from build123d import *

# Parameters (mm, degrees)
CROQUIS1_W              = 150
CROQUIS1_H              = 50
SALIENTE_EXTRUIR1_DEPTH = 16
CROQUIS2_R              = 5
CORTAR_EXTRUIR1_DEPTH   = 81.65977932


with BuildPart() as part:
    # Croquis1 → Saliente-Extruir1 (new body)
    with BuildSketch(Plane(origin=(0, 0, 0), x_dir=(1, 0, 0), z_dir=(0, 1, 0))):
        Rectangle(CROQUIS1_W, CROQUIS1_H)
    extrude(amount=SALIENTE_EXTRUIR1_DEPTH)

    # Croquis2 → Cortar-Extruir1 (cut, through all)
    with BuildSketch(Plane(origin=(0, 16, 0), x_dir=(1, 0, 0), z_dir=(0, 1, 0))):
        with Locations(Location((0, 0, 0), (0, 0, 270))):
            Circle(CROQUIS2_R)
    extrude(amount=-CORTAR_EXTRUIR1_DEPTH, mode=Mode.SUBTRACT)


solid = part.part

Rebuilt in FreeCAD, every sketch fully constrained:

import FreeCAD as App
import Part
import Sketcher
from FreeCAD import Vector
Q = App.Units.Quantity

doc = App.newDocument("Part")
body = doc.addObject("PartDesign::Body", "Body")

sketch1 = body.newObject("Sketcher::SketchObject", "Sketch")
sketch1.AttachmentSupport = (doc.getObject("XZ_Plane"), [""])
sketch1.MapMode = "FlatFace"
sketch1.addGeometry([
    Part.LineSegment(Vector(-75, -25, 0), Vector(-75, 25, 0)),
    Part.LineSegment(Vector(-75, 25, 0), Vector(75, 25, 0)),
    Part.LineSegment(Vector(75, 25, 0), Vector(75, -25, 0)),
    Part.LineSegment(Vector(75, -25, 0), Vector(-75, -25, 0)),
], False)
sketch1.addConstraint([
    Sketcher.Constraint("Coincident", 0, 2, 1, 1),
    Sketcher.Constraint("Coincident", 1, 2, 2, 1),
    Sketcher.Constraint("Coincident", 2, 2, 3, 1),
    Sketcher.Constraint("Coincident", 3, 2, 0, 1),
    Sketcher.Constraint("Vertical", 0),
    Sketcher.Constraint("Horizontal", 1),
    Sketcher.Constraint("Vertical", 2),
    Sketcher.Constraint("Horizontal", 3),
    Sketcher.Constraint("Symmetric", 0, 2, 2, 2, -1, 1),
    Sketcher.Constraint("DistanceX", 1, 1, 1, 2, Q("150 mm")),
    Sketcher.Constraint("DistanceY", 0, 1, 0, 2, Q("50 mm")),
])
pad1 = body.newObject("PartDesign::Pad", "Pad")
pad1.Profile = sketch1
pad1.Length = 16
pad1.Reversed = True

sketch2 = body.newObject("Sketcher::SketchObject", "Sketch001")
sketch2.AttachmentSupport = (doc.getObject("XZ_Plane"), [""])
sketch2.MapMode = "FlatFace"
sketch2.AttachmentOffset = App.Placement(Vector(0, 0, -16), App.Rotation())
sketch2.addGeometry(Part.Circle(Vector(0, 0, 0), Vector(0, 0, 1), 5), False)
sketch2.addConstraint([
    Sketcher.Constraint("Coincident", 0, 3, -1, 1),
    Sketcher.Constraint("Diameter", 0, Q("10 mm")),
])
pocket1 = body.newObject("PartDesign::Pocket", "Pocket")
pocket1.Profile = sketch2
pocket1.Type = "ThroughAll"
pocket1.Reversed = True

doc.recompute()
